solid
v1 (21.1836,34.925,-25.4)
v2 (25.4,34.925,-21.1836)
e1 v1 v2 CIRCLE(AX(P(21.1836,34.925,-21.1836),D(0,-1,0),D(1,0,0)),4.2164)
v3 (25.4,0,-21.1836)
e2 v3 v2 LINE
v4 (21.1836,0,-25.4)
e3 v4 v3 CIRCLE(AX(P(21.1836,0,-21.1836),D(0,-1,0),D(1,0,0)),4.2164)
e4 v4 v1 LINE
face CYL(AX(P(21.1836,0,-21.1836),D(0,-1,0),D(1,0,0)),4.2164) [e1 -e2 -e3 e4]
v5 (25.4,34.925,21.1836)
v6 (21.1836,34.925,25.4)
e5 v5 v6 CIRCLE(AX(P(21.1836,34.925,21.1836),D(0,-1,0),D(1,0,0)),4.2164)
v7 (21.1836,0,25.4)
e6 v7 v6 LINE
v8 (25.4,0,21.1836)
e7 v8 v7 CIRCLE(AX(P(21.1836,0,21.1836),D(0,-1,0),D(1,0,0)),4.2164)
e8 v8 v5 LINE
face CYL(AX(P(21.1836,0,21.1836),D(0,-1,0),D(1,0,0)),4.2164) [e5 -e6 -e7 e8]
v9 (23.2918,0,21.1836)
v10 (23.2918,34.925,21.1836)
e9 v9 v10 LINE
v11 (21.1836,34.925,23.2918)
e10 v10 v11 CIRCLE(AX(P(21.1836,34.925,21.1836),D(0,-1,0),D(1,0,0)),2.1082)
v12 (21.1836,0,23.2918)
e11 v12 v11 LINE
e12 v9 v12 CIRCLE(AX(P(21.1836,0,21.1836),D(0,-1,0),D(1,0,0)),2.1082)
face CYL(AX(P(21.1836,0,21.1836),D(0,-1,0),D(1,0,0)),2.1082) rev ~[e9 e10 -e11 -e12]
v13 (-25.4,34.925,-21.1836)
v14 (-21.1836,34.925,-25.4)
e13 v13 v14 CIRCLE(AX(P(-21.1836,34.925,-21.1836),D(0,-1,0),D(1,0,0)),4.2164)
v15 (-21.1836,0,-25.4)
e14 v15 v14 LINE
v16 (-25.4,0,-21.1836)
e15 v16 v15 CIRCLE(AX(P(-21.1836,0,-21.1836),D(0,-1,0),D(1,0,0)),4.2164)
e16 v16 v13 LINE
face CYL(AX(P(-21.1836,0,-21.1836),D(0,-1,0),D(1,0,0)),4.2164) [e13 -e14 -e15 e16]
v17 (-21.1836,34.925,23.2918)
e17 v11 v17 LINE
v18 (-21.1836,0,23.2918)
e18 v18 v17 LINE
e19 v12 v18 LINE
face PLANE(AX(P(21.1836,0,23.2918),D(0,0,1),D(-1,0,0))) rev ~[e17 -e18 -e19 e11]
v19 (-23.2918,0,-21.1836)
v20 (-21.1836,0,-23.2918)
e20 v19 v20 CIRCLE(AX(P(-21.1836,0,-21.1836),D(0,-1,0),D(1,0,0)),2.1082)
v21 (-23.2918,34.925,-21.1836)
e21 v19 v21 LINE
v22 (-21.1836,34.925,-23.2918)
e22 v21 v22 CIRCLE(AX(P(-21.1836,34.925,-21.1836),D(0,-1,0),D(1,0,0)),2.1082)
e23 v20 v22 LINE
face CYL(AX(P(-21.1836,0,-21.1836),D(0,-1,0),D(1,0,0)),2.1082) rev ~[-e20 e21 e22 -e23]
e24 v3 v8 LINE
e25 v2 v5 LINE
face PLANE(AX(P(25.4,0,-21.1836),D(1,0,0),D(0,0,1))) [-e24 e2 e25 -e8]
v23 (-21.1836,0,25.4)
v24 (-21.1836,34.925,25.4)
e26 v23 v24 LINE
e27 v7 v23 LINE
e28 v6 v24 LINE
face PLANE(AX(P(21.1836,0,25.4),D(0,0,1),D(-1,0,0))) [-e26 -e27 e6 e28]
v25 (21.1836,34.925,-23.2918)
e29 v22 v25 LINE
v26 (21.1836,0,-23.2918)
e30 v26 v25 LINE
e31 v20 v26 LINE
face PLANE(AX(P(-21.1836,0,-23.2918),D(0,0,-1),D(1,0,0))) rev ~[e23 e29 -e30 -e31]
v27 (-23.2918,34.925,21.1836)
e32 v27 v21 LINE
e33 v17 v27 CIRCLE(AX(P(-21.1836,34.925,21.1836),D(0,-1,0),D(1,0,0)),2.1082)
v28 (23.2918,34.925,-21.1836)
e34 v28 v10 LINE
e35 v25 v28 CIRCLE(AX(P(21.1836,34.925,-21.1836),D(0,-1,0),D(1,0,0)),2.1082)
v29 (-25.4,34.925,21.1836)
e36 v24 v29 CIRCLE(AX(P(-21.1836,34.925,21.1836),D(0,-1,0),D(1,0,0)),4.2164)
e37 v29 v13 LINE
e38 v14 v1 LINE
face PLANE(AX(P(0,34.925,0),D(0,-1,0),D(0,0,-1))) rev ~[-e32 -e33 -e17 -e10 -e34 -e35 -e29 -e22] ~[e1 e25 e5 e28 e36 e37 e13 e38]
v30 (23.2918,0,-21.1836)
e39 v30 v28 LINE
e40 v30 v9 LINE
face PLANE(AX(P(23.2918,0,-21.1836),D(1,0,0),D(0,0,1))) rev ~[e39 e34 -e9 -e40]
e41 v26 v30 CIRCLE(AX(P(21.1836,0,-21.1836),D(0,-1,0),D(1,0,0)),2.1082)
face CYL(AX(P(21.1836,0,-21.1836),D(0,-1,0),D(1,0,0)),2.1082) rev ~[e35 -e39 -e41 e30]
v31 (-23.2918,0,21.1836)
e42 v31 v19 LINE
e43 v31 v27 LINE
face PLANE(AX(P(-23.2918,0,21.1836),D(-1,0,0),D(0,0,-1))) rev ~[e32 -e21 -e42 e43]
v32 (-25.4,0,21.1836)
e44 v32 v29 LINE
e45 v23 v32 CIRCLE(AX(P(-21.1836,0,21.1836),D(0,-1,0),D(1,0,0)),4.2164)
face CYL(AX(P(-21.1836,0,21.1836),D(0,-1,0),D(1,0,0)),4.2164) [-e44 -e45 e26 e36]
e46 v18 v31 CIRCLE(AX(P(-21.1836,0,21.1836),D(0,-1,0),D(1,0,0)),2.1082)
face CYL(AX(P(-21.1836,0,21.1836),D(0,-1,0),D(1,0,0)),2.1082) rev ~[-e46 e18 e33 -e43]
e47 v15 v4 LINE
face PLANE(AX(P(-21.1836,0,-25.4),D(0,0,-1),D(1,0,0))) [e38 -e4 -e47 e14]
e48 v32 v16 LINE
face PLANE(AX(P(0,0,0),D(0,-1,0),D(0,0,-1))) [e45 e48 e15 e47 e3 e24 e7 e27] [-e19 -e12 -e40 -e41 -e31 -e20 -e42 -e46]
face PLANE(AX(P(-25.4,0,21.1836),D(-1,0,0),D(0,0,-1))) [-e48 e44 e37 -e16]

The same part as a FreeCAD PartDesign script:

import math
import FreeCAD as App
import Part
import Sketcher

V = App.Vector
Q = App.Units.Quantity

doc = App.newDocument("Part")
params = doc.addObject("Spreadsheet::Sheet", "Params")
for row, (alias, value) in enumerate([
    ("sketch1_radius", "0.166 in"),
    ("sketch1_radius2", "0.083 in"),
    ("pad1_length", "1.375 in"),
], start=1):
    params.set(f"A{row}", alias)
    params.set(f"B{row}", "=" + value)
    params.setAlias(f"B{row}", alias)

body = doc.addObject("PartDesign::Body", "Body")

# Sketch on XZ plane
sketch1 = body.newObject("Sketcher::SketchObject", "Sketch")
sketch1.AttachmentSupport = (doc.getObject("XZ_Plane"), [""])
sketch1.MapMode = "FlatFace"
sketch1.addGeometry([
    Part.LineSegment(V(-25.4, 21.2, 0), V(-25.4, -21.2, 0)),  # 0
    Part.ArcOfCircle(Part.Circle(V(-21.2, -21.2, 0), V(0, 0, 1), 4.2), math.radians(180), math.radians(270)),  # 1
    Part.LineSegment(V(-21.2, -25.4, 0), V(21.2, -25.4, 0)),  # 2
    Part.ArcOfCircle(Part.Circle(V(21.2, -21.2, 0), V(0, 0, 1), 4.2), math.radians(-90), math.radians(0)),  # 3
    Part.LineSegment(V(25.4, -21.2, 0), V(25.4, 21.2, 0)),  # 4
    Part.ArcOfCircle(Part.Circle(V(21.2, 21.2, 0), V(0, 0, 1), 4.2), math.radians(0), math.radians(90)),  # 5
    Part.LineSegment(V(21.2, 25.4, 0), V(-21.2, 25.4, 0)),  # 6
    Part.ArcOfCircle(Part.Circle(V(-21.2, 21.2, 0), V(0, 0, 1), 4.2), math.radians(90), math.radians(180)),  # 7
    Part.ArcOfCircle(Part.Circle(V(-21.2, -21.2, 0), V(0, 0, 1), 2.1), math.radians(180), math.radians(270)),  # 8
    Part.LineSegment(V(-23.3, -21.2, 0), V(-23.3, 21.2, 0)),  # 9
    Part.ArcOfCircle(Part.Circle(V(-21.2, 21.2, 0), V(0, 0, 1), 2.1), math.radians(90), math.radians(180)),  # 10
    Part.LineSegment(V(-21.2, 23.3, 0), V(21.2, 23.3, 0)),  # 11
    Part.ArcOfCircle(Part.Circle(V(21.2, 21.2, 0), V(0, 0, 1), 2.1), math.radians(0), math.radians(90)),  # 12
    Part.LineSegment(V(23.3, 21.2, 0), V(23.3, -21.2, 0)),  # 13
    Part.ArcOfCircle(Part.Circle(V(21.2, -21.2, 0), V(0, 0, 1), 2.1), math.radians(-90), math.radians(0)),  # 14
    Part.LineSegment(V(21.2, -23.3, 0), V(-21.2, -23.3, 0)),  # 15
], False)
sketch1.addConstraint([
    Sketcher.Constraint("Tangent", 0, 2, 1, 1),
    Sketcher.Constraint("Tangent", 1, 2, 2, 1),
    Sketcher.Constraint("Tangent", 2, 2, 3, 1),
    Sketcher.Constraint("Tangent", 3, 2, 4, 1),
    Sketcher.Constraint("Tangent", 4, 2, 5, 1),
    Sketcher.Constraint("Tangent", 5, 2, 6, 1),
    Sketcher.Constraint("Tangent", 6, 2, 7, 1),
    Sketcher.Constraint("Tangent", 7, 2, 0, 1),
    Sketcher.Constraint("Tangent", 8, 1, 9, 1),
    Sketcher.Constraint("Tangent", 9, 2, 10, 2),
    Sketcher.Constraint("Tangent", 10, 1, 11, 1),
    Sketcher.Constraint("Tangent", 11, 2, 12, 2),
    Sketcher.Constraint("Tangent", 12, 1, 13, 1),
    Sketcher.Constraint("Tangent", 13, 2, 14, 2),
    Sketcher.Constraint("Tangent", 14, 1, 15, 1),
    Sketcher.Constraint("Tangent", 15, 2, 8, 2),
    Sketcher.Constraint("Vertical", 0),
    Sketcher.Constraint("Horizontal", 2),
    Sketcher.Constraint("Vertical", 4),
    Sketcher.Constraint("Horizontal", 6),
    Sketcher.Constraint("Vertical", 9),
    Sketcher.Constraint("Horizontal", 11),
    Sketcher.Constraint("Vertical", 13),
    Sketcher.Constraint("Horizontal", 15),
    Sketcher.Constraint("Coincident", 8, 3, 1, 3),
    Sketcher.Constraint("Coincident", 10, 3, 7, 3),
    Sketcher.Constraint("Coincident", 12, 3, 5, 3),
    Sketcher.Constraint("Equal", 1, 3),
    Sketcher.Constraint("Equal", 3, 5),
    Sketcher.Constraint("Equal", 5, 7),
    Sketcher.Constraint("Equal", 12, 14),
    Sketcher.Constraint("Symmetric", 1, 3, 5, 3, -1, 1),
    Sketcher.Constraint("Equal", 15, 0),
    Sketcher.Constraint("DistanceX", 0, 2, -1, 1, Q("1 in")),
    Sketcher.Constraint("Radius", 1, Q("0.166 in")),
    Sketcher.Constraint("Radius", 8, Q("0.083 in")),
])
sketch1.setExpression("Constraints[34]", "Params.sketch1_radius")
sketch1.setExpression("Constraints[35]", "Params.sketch1_radius2")
pad1 = body.newObject("PartDesign::Pad", "Pad")
pad1.Profile = sketch1
pad1.setExpression("Length", "Params.pad1_length")
pad1.Reversed = True

doc.recompute()
